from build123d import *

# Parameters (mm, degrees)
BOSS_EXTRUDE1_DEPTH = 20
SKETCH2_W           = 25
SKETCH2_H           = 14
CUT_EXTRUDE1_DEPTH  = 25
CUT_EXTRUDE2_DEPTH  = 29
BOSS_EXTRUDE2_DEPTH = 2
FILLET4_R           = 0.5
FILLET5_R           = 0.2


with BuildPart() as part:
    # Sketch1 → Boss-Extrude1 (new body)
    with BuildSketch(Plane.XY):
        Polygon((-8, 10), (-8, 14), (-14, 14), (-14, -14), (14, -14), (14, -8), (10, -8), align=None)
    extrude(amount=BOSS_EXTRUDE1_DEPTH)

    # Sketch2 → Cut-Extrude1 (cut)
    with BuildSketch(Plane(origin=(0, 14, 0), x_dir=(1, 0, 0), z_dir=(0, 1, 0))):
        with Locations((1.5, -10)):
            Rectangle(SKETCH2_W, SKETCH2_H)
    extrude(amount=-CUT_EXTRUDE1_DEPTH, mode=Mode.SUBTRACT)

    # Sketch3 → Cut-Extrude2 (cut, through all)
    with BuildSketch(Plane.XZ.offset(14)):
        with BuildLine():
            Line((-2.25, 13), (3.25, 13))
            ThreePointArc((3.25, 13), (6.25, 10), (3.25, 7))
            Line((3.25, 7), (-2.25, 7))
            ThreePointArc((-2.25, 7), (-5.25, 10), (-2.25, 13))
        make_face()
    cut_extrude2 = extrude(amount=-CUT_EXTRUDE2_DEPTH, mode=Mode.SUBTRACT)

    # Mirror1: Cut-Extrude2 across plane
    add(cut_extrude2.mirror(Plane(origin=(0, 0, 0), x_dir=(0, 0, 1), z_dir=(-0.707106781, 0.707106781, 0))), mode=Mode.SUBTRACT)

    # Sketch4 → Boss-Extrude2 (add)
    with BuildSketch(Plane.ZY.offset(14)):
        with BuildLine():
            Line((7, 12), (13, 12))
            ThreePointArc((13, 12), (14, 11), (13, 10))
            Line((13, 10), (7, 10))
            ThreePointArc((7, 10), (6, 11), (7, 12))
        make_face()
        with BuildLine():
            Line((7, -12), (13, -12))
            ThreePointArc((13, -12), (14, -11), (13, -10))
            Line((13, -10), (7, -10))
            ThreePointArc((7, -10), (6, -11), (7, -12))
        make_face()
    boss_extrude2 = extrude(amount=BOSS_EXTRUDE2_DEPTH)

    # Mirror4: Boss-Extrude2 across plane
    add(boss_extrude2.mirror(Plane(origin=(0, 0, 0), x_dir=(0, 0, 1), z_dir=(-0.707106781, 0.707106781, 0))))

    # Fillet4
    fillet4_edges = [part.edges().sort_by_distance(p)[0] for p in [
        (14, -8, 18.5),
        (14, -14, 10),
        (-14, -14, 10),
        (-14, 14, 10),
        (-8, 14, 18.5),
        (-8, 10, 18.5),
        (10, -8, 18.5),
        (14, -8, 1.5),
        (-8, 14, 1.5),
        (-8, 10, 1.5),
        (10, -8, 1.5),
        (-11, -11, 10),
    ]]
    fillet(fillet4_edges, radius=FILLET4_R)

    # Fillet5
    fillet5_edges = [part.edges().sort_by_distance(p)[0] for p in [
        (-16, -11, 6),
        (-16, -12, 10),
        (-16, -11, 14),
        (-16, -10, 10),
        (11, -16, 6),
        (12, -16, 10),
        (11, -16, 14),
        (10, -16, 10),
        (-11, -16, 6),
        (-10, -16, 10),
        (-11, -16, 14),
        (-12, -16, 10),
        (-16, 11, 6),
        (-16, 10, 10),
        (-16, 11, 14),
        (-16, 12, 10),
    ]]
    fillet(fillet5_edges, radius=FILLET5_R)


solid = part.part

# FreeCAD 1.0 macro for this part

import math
import FreeCAD as App
import Part
import Sketcher


def edges_at(feature, points):
    """Names of the edges that pass closest to the given points."""
    edges = feature.Shape.Edges
    near = lambda p: min(range(len(edges)), key=lambda i: edges[i].distToShape(Part.Vertex(*p))[0])
    return sorted({f"Edge{near(p) + 1}" for p in points})

doc = App.newDocument("Part")
body = doc.addObject("PartDesign::Body", "Body")

# Sketch on XY plane
sketch1 = body.newObject("Sketcher::SketchObject", "Sketch")
sketch1.AttachmentSupport = (doc.getObject("XY_Plane"), [""])
sketch1.MapMode = "FlatFace"
sketch1.addGeometry([
    Part.LineSegment(App.Vector(-8, 10, 0), App.Vector(-8, 14, 0)),  # 0
    Part.LineSegment(App.Vector(-8, 14, 0), App.Vector(-14, 14, 0)),  # 1
    Part.LineSegment(App.Vector(-14, 14, 0), App.Vector(-14, -14, 0)),  # 2
    Part.LineSegment(App.Vector(-14, -14, 0), App.Vector(14, -14, 0)),  # 3
    Part.LineSegment(App.Vector(14, -14, 0), App.Vector(14, -8, 0)),  # 4
    Part.LineSegment(App.Vector(14, -8, 0), App.Vector(10, -8, 0)),  # 5
    Part.LineSegment(App.Vector(10, -8, 0), App.Vector(-8, 10, 0)),  # 6
], False)
sketch1.addConstraint([
    Sketcher.Constraint("Coincident", 0, 2, 1, 1),
    Sketcher.Constraint("Coincident", 1, 2, 2, 1),
    Sketcher.Constraint("Coincident", 2, 2, 3, 1),
    Sketcher.Constraint("Coincident", 3, 2, 4, 1),
    Sketcher.Constraint("Coincident", 4, 2, 5, 1),
    Sketcher.Constraint("Coincident", 5, 2, 6, 1),
    Sketcher.Constraint("Coincident", 6, 2, 0, 1),
    Sketcher.Constraint("Vertical", 0),
    Sketcher.Constraint("Horizontal", 1),
    Sketcher.Constraint("Vertical", 2),
    Sketcher.Constraint("Horizontal", 3),
    Sketcher.Constraint("Vertical", 4),
    Sketcher.Constraint("Horizontal", 5),
    Sketcher.Constraint("Symmetric", 1, 2, 3, 2, -1, 1),
    Sketcher.Constraint("Equal", 5, 0),
    Sketcher.Constraint("Equal", 3, 2),
    Sketcher.Constraint("Equal", 1, 4),
    Sketcher.Constraint("DistanceX", 1, 2, 1, 1, 6.0),
    Sketcher.Constraint("DistanceX", 3, 1, 3, 2, 28.0),
    Sketcher.Constraint("DistanceX", 5, 2, 5, 1, 4.0),
])
pad1 = body.newObject("PartDesign::Pad", "Pad")
pad1.Profile = sketch1
pad1.Length = 20

# Sketch on XZ plane
sketch2 = body.newObject("Sketcher::SketchObject", "Sketch001")
sketch2.AttachmentSupport = (doc.getObject("XZ_Plane"), [""])
sketch2.MapMode = "FlatFace"
sketch2.AttachmentOffset = App.Placement(App.Vector(0, 0, -14), App.Rotation())
sketch2.addGeometry([
    Part.LineSegment(App.Vector(-11, 3, 0), App.Vector(-11, 17, 0)),
    Part.LineSegment(App.Vector(-11, 17, 0), App.Vector(14, 17, 0)),
    Part.LineSegment(App.Vector(14, 17, 0), App.Vector(14, 3, 0)),
    Part.LineSegment(App.Vector(14, 3, 0), App.Vector(-11, 3, 0)),
], False)
sketch2.addConstraint([
    Sketcher.Constraint("Coincident", 0, 2, 1, 1),
    Sketcher.Constraint("Coincident", 1, 2, 2, 1),
    Sketcher.Constraint("Coincident", 2, 2, 3, 1),
    Sketcher.Constraint("Coincident", 3, 2, 0, 1),
    Sketcher.Constraint("Vertical", 0),
    Sketcher.Constraint("Horizontal", 1),
    Sketcher.Constraint("Vertical", 2),
    Sketcher.Constraint("Horizontal", 3),
    Sketcher.Constraint("DistanceX", 1, 1, 1, 2, 25.0),
    Sketcher.Constraint("DistanceY", 0, 1, 0, 2, 14.0),
    Sketcher.Constraint("DistanceX", 0, 2, -1, 1, 11.0),
    Sketcher.Constraint("DistanceY", -1, 1, 0, 2, 17.0),
])
pocket1 = body.newObject("PartDesign::Pocket", "Pocket")
pocket1.Profile = sketch2
pocket1.Length = 25
pocket1.Reversed = True

# Sketch on XZ plane
sketch3 = body.newObject("Sketcher::SketchObject", "Sketch002")
sketch3.AttachmentSupport = (doc.getObject("XZ_Plane"), [""])
sketch3.MapMode = "FlatFace"
sketch3.AttachmentOffset = App.Placement(App.Vector(0, 0, 14), App.Rotation())
sketch3.addGeometry([
    Part.LineSegment(App.Vector(3.2, 13, 0), App.Vector(-2.2, 13, 0)),
    Part.ArcOfCircle(Part.Circle(App.Vector(-2.2, 10, 0), App.Vector(0, 0, 1), 3), math.radians(90), math.radians(270)),
    Part.LineSegment(App.Vector(-2.2, 7, 0), App.Vector(3.2, 7, 0)),
    Part.ArcOfCircle(Part.Circle(App.Vector(3.2, 10, 0), App.Vector(0, 0, 1), 3), math.radians(-90), math.radians(90)),
], False)
sketch3.addConstraint([
    Sketcher.Constraint("Tangent", 0, 2, 1, 1),
    Sketcher.Constraint("Tangent", 1, 2, 2, 1),
    Sketcher.Constraint("Tangent", 2, 2, 3, 1),
    Sketcher.Constraint("Tangent", 3, 2, 0, 1),
    Sketcher.Constraint("Horizontal", 0),
    Sketcher.Constraint("Horizontal", 2),
    Sketcher.Constraint("Radius", 1, 3.0),
    Sketcher.Constraint("DistanceX", 0, 2, 0, 1, 5.5),
    Sketcher.Constraint("DistanceY", -1, 1, 1, 3, 10.0),
    Sketcher.Constraint("DistanceX", 1, 3, -1, 1, 2.25),
])
pocket2 = body.newObject("PartDesign::Pocket", "Pocket001")
pocket2.Profile = sketch3
pocket2.Type = "ThroughAll"
doc.recompute()

datumplane = body.newObject("PartDesign::Plane", "DatumPlane")
datumplane.Placement = App.Placement(App.Vector(0, 0, 0), App.Rotation(App.Vector(0.707106781, 0.707106781, 0), App.Vector(0, 0, -1), App.Vector(-0.707106781, 0.707106781, 0), "ZXY"))
mirrored = body.newObject("PartDesign::Mirrored", "Mirrored")
mirrored.Originals = [pocket2]
mirrored.MirrorPlane = (datumplane, [""])
body.Tip = mirrored

# Sketch on YZ plane
sketch4 = body.newObject("Sketcher::SketchObject", "Sketch003")
sketch4.AttachmentSupport = (doc.getObject("YZ_Plane"), [""])
sketch4.MapMode = "FlatFace"
sketch4.AttachmentOffset = App.Placement(App.Vector(0, 0, -14), App.Rotation())
sketch4.addGeometry([
    Part.LineSegment(App.Vector(12, 13, 0), App.Vector(12, 7, 0)),  # 0
    Part.ArcOfCircle(Part.Circle(App.Vector(11, 7, 0), App.Vector(0, 0, 1), 1), math.radians(180), math.radians(360)),  # 1
    Part.LineSegment(App.Vector(10, 7, 0), App.Vector(10, 13, 0)),  # 2
    Part.ArcOfCircle(Part.Circle(App.Vector(11, 13, 0), App.Vector(0, 0, 1), 1), math.radians(0), math.radians(180)),  # 3
    Part.LineSegment(App.Vector(-12, 7, 0), App.Vector(-12, 13, 0)),  # 4
    Part.ArcOfCircle(Part.Circle(App.Vector(-11, 13, 0), App.Vector(0, 0, 1), 1), math.radians(0), math.radians(180)),  # 5
    Part.LineSegment(App.Vector(-10, 13, 0), App.Vector(-10, 7, 0)),  # 6
    Part.ArcOfCircle(Part.Circle(App.Vector(-11, 7, 0), App.Vector(0, 0, 1), 1), math.radians(180), math.radians(360)),  # 7
], False)
sketch4.addConstraint([
    Sketcher.Constraint("Tangent", 0, 2, 1, 2),
    Sketcher.Constraint("Tangent", 1, 1, 2, 1),
    Sketcher.Constraint("Tangent", 2, 2, 3, 2),
    Sketcher.Constraint("Tangent", 3, 1, 0, 1),
    Sketcher.Constraint("Tangent", 4, 2, 5, 2),
    Sketcher.Constraint("Tangent", 5, 1, 6, 1),
    Sketcher.Constraint("Tangent", 6, 2, 7, 2),
    Sketcher.Constraint("Tangent", 7, 1, 4, 1),
    Sketcher.Constraint("Vertical", 0),
    Sketcher.Constraint("Vertical", 2),
    Sketcher.Constraint("Vertical", 4),
    Sketcher.Constraint("Vertical", 6),
    Sketcher.Constraint("Equal", 3, 5),
    Sketcher.Constraint("Symmetric", 3, 3, 5, 3, -2),
    Sketcher.Constraint("Horizontal", 1, 3, 7, 3),
    Sketcher.Constraint("Radius", 1, 1.0),
    Sketcher.Constraint("DistanceY", 0, 2, 0, 1, 6.0),
    Sketcher.Constraint("DistanceX", -1, 1, 1, 3, 11.0),
    Sketcher.Constraint("DistanceY", -1, 1, 1, 3, 7.0),
])
pad2 = body.newObject("PartDesign::Pad", "Pad001")
pad2.Profile = sketch4
pad2.Length = 2
pad2.Reversed = True
doc.recompute()

datumplane2 = body.newObject("PartDesign::Plane", "DatumPlane001")
datumplane2.Placement = App.Placement(App.Vector(0, 0, 0), App.Rotation(App.Vector(0.707106781, 0.707106781, 0), App.Vector(0, 0, -1), App.Vector(-0.707106781, 0.707106781, 0), "ZXY"))
mirrored2 = body.newObject("PartDesign::Mirrored", "Mirrored001")
mirrored2.Originals = [pad2]
mirrored2.MirrorPlane = (datumplane2, [""])
body.Tip = mirrored2
doc.recompute()

fillet = body.newObject("PartDesign::Fillet", "Fillet")
fillet.Base = (mirrored2, edges_at(mirrored2, [
    (14, -8, 18.5),
    (14, -14, 10),
    (-14, -14, 10),
    (-14, 14, 10),
    (-8, 14, 18.5),
    (-8, 10, 18.5),
    (10, -8, 18.5),
    (14, -8, 1.5),
    (-8, 14, 1.5),
    (-8, 10, 1.5),
    (10, -8, 1.5),
    (-11, -11, 10),
]))
fillet.Radius = 0.5
doc.recompute()

fillet2 = body.newObject("PartDesign::Fillet", "Fillet001")
fillet2.Base = (fillet, edges_at(fillet, [
    (-16, -11, 6),
    (-16, -12, 10),
    (-16, -11, 14),
    (-16, -10, 10),
    (11, -16, 6),
    (12, -16, 10),
    (11, -16, 14),
    (10, -16, 10),
    (-11, -16, 6),
    (-10, -16, 10),
    (-11, -16, 14),
    (-12, -16, 10),
    (-16, 11, 6),
    (-16, 10, 10),
    (-16, 11, 14),
    (-16, 12, 10),
]))
fillet2.Radius = 0.2

doc.recompute()
